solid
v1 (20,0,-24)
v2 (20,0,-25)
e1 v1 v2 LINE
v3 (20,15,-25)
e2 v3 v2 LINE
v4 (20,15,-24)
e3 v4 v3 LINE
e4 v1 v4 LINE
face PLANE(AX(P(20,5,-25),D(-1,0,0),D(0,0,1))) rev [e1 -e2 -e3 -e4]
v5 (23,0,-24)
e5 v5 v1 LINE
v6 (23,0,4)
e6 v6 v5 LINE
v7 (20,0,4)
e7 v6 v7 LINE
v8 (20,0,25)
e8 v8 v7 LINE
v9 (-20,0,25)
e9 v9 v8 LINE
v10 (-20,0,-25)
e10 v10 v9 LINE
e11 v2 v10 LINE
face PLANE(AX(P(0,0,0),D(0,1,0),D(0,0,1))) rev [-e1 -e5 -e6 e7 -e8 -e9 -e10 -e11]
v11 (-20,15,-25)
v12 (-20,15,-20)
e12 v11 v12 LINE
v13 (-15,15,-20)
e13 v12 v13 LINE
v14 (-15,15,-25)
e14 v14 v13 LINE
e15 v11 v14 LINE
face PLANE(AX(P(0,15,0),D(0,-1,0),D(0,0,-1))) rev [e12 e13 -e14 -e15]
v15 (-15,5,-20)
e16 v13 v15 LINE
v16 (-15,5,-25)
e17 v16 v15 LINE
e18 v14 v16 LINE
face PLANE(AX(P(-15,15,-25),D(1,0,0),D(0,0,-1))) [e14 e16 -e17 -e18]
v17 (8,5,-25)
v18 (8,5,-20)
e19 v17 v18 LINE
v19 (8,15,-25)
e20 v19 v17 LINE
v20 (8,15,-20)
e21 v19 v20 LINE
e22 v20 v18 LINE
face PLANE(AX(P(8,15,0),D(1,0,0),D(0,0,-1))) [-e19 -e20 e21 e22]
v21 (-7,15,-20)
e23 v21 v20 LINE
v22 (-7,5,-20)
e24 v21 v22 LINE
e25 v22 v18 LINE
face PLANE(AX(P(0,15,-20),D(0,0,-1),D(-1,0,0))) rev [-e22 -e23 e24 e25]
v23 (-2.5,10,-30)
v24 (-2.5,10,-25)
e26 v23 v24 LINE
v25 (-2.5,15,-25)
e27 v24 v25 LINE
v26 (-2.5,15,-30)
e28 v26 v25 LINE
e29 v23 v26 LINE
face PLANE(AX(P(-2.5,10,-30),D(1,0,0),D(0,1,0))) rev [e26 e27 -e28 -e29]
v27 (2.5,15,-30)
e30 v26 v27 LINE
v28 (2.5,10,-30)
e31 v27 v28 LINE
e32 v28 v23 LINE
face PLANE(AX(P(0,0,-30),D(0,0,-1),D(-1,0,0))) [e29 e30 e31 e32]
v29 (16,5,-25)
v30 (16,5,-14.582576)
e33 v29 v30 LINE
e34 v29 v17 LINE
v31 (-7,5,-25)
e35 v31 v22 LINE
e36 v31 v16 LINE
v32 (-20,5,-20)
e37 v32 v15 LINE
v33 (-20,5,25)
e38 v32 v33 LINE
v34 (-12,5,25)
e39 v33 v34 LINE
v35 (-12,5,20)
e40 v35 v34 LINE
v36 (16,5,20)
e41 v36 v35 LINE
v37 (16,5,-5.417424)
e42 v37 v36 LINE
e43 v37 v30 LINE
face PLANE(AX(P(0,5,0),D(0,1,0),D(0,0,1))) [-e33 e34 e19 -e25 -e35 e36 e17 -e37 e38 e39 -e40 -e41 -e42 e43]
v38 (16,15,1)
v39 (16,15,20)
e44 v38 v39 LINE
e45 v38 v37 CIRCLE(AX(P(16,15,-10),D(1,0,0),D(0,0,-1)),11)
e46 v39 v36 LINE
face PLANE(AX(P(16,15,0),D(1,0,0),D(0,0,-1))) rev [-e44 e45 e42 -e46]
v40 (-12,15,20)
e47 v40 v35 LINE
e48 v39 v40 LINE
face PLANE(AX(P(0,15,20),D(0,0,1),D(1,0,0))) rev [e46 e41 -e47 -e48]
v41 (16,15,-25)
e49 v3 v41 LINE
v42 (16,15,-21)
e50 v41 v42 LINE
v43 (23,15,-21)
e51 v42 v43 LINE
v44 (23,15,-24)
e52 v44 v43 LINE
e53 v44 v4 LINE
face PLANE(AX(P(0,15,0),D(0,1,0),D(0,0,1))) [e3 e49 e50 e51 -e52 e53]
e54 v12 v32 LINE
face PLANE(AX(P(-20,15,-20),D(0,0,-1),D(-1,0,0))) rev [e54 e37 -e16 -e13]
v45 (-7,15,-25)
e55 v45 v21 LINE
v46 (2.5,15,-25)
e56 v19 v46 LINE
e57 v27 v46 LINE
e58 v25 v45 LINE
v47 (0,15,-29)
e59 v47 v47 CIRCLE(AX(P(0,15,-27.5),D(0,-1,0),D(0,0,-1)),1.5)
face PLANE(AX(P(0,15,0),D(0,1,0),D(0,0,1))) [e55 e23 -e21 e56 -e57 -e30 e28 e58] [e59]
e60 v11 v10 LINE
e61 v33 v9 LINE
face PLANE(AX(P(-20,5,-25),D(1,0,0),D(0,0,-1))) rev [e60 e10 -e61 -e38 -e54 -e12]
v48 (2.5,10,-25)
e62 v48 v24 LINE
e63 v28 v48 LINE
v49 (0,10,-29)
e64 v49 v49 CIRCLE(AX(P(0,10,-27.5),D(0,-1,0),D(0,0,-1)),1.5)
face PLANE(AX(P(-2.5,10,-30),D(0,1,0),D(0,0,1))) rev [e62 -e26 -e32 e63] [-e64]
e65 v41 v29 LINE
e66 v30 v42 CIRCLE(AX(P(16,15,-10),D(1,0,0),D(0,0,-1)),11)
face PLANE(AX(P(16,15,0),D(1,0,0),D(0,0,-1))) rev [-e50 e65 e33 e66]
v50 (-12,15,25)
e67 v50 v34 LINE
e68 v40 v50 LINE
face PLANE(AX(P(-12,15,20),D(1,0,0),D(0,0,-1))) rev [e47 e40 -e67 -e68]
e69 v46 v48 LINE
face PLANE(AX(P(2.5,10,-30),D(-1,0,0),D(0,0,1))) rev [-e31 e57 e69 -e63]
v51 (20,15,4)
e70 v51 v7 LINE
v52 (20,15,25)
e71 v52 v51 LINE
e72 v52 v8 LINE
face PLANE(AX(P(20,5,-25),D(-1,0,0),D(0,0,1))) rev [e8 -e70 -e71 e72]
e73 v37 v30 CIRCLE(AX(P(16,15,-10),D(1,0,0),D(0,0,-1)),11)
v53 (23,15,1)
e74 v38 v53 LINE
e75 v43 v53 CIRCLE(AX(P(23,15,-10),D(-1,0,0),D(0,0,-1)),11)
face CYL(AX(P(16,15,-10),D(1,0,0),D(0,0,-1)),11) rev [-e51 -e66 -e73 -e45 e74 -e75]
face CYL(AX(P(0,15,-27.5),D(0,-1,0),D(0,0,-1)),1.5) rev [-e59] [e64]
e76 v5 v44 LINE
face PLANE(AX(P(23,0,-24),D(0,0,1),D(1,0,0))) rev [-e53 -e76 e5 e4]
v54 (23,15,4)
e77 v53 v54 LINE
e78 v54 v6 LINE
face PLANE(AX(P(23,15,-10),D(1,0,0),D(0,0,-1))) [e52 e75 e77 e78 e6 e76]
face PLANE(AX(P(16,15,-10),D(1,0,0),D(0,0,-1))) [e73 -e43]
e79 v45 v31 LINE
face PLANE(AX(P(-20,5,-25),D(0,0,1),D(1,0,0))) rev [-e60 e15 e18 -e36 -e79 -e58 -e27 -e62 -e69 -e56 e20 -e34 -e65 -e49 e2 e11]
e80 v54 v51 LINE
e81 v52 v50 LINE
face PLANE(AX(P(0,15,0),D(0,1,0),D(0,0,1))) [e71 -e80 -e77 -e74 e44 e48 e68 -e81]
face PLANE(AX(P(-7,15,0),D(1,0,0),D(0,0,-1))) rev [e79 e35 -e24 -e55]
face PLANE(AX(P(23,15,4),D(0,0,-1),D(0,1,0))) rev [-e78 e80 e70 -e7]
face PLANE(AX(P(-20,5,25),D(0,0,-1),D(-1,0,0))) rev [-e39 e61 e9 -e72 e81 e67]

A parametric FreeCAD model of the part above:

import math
import FreeCAD as App
import Part
import Sketcher

V = App.Vector

doc = App.newDocument("Part")
body = doc.addObject("PartDesign::Body", "Body")

sketch1 = doc.addObject("Sketcher::SketchObject", "Sketch")
body.addObject(sketch1)
sketch1.AttachmentSupport = (doc.XZ_Plane, [""])
sketch1.MapMode = "FlatFace"
sketch1.addGeometry([
    Part.LineSegment(V(-20, -25, 0), V(-20, 25, 0)),
    Part.LineSegment(V(-20, 25, 0), V(20, 25, 0)),
    Part.LineSegment(V(20, 25, 0), V(20, -25, 0)),
    Part.LineSegment(V(20, -25, 0), V(-20, -25, 0)),
], False)
sketch1.addConstraint([
    Sketcher.Constraint("Coincident", 0, 2, 1, 1),
    Sketcher.Constraint("Coincident", 1, 2, 2, 1),
    Sketcher.Constraint("Coincident", 2, 2, 3, 1),
    Sketcher.Constraint("Coincident", 3, 2, 0, 1),
    Sketcher.Constraint("Vertical", 0),
    Sketcher.Constraint("Horizontal", 1),
    Sketcher.Constraint("Vertical", 2),
    Sketcher.Constraint("Horizontal", 3),
    Sketcher.Constraint("Symmetric", 0, 2, 2, 2, -1, 1),
    Sketcher.Constraint("DistanceX", 1, 1, 1, 2, 40.0),
    Sketcher.Constraint("DistanceY", 0, 1, 0, 2, 50.0),
])
pad1 = doc.addObject("PartDesign::Pad", "Pad")
body.addObject(pad1)
pad1.Profile = sketch1
pad1.Length = 5
pad1.Reversed = True

sketch2 = doc.addObject("Sketcher::SketchObject", "Sketch001")
body.addObject(sketch2)
sketch2.AttachmentSupport = (doc.XZ_Plane, [""])
sketch2.MapMode = "FlatFace"
sketch2.AttachmentOffset = App.Placement(V(0, 0, -5), App.Rotation())
sketch2.addGeometry([
    Part.LineSegment(V(20, 25, 0), V(20, -25, 0)),
    Part.LineSegment(V(20, -25, 0), V(16, -25, 0)),
    Part.LineSegment(V(16, -25, 0), V(16, 20, 0)),
    Part.LineSegment(V(16, 20, 0), V(-12, 20, 0)),
    Part.LineSegment(V(-12, 20, 0), V(-12, 25, 0)),
    Part.LineSegment(V(-12, 25, 0), V(20, 25, 0)),
    Part.LineSegment(V(-7, -25, 0), V(-7, -20, 0)),
    Part.LineSegment(V(-7, -20, 0), V(8, -20, 0)),
    Part.LineSegment(V(8, -20, 0), V(8, -25, 0)),
    Part.LineSegment(V(8, -25, 0), V(-7, -25, 0)),
    Part.LineSegment(V(-20, -25, 0), V(-20, -20, 0)),
    Part.LineSegment(V(-20, -20, 0), V(-15, -20, 0)),
    Part.LineSegment(V(-15, -20, 0), V(-15, -25, 0)),
    Part.LineSegment(V(-15, -25, 0), V(-20, -25, 0)),
], False)
sketch2.addConstraint([
    Sketcher.Constraint("Coincident", 0, 2, 1, 1),
    Sketcher.Constraint("Coincident", 1, 2, 2, 1),
    Sketcher.Constraint("Coincident", 2, 2, 3, 1),
    Sketcher.Constraint("Coincident", 3, 2, 4, 1),
    Sketcher.Constraint("Coincident", 4, 2, 5, 1),
    Sketcher.Constraint("Coincident", 5, 2, 0, 1),
    Sketcher.Constraint("Coincident", 6, 2, 7, 1),
    Sketcher.Constraint("Coincident", 7, 2, 8, 1),
    Sketcher.Constraint("Coincident", 8, 2, 9, 1),
    Sketcher.Constraint("Coincident", 9, 2, 6, 1),
    Sketcher.Constraint("Coincident", 10, 2, 11, 1),
    Sketcher.Constraint("Coincident", 11, 2, 12, 1),
    Sketcher.Constraint("Coincident", 12, 2, 13, 1),
    Sketcher.Constraint("Coincident", 13, 2, 10, 1),
    Sketcher.Constraint("Vertical", 0),
    Sketcher.Constraint("Horizontal", 1),
    Sketcher.Constraint("Vertical", 2),
    Sketcher.Constraint("Horizontal", 3),
    Sketcher.Constraint("Vertical", 4),
    Sketcher.Constraint("Horizontal", 5),
    Sketcher.Constraint("Vertical", 6),
    Sketcher.Constraint("Horizontal", 7),
    Sketcher.Constraint("Vertical", 8),
    Sketcher.Constraint("Horizontal", 9),
    Sketcher.Constraint("Vertical", 10),
    Sketcher.Constraint("Horizontal", 11),
    Sketcher.Constraint("Vertical", 12),
    Sketcher.Constraint("Horizontal", 13),
    Sketcher.Constraint("Symmetric", 5, 2, 13, 2, -1, 1),
    Sketcher.Constraint("Horizontal", 1, 2, 8, 2),
    Sketcher.Constraint("Horizontal", 7, 2, 10, 2),
    Sketcher.Constraint("Horizontal", 9, 2, 12, 2),
    Sketcher.Constraint("Equal", 13, 4),
    Sketcher.Constraint("Equal", 4, 6),
    Sketcher.Constraint("DistanceX", 1, 2, 1, 1, 4.0),
    Sketcher.Constraint("DistanceX", 3, 2, 3, 1, 28.0),
    Sketcher.Constraint("DistanceX", 7, 1, 7, 2, 15.0),
    Sketcher.Constraint("DistanceX", 11, 1, 11, 2, 5.0),
    Sketcher.Constraint("DistanceY", 0, 2, 0, 1, 50.0),
    Sketcher.Constraint("DistanceX", -1, 1, 0, 2, 20.0),
    Sketcher.Constraint("DistanceX", 6, 2, -1, 1, 7.0),
])
pad2 = doc.addObject("PartDesign::Pad", "Pad001")
body.addObject(pad2)
pad2.Profile = sketch2
pad2.Length = 10
pad2.Reversed = True

sketch3 = doc.addObject("Sketcher::SketchObject", "Sketch002")
body.addObject(sketch3)
sketch3.AttachmentSupport = (doc.YZ_Plane, [""])
sketch3.MapMode = "FlatFace"
sketch3.AttachmentOffset = App.Placement(V(0, 0, 20), App.Rotation())
sketch3.addGeometry([
    Part.LineSegment(V(15, -21, 0), V(15, 1, 0)),
    Part.ArcOfCircle(Part.Circle(V(15, -10, 0), V(0, 0, 1), 11), math.radians(90), math.radians(270)),
], False)
sketch3.addConstraint([
    Sketcher.Constraint("Coincident", 0, 1, 1, 2),
    Sketcher.Constraint("Coincident", 1, 1, 0, 2),
    Sketcher.Constraint("Vertical", 0),
    Sketcher.Constraint("Vertical", 1, 3, 0, 1),
    Sketcher.Constraint("Radius", 1, 11.0),
    Sketcher.Constraint("DistanceX", -1, 1, 1, 3, 15.0),
    Sketcher.Constraint("DistanceY", 1, 3, -1, 1, 10.0),
])
pocket1 = doc.addObject("PartDesign::Pocket", "Pocket")
body.addObject(pocket1)
pocket1.Profile = sketch3
pocket1.Length = 4

sketch4 = doc.addObject("Sketcher::SketchObject", "Sketch003")
body.addObject(sketch4)
sketch4.AttachmentSupport = (doc.YZ_Plane, [""])
sketch4.MapMode = "FlatFace"
sketch4.AttachmentOffset = App.Placement(V(0, 0, 23), App.Rotation())
sketch4.addGeometry([
    Part.LineSegment(V(15, 1, 0), V(15, 4, 0)),
    Part.LineSegment(V(15, 4, 0), V(0, 4, 0)),
    Part.LineSegment(V(0, 4, 0), V(0, -24, 0)),
    Part.LineSegment(V(0, -24, 0), V(15, -24, 0)),
    Part.LineSegment(V(15, -24, 0), V(15, -21, 0)),
    Part.ArcOfCircle(Part.Circle(V(15, -10, 0), V(0, 0, 1), 11), math.radians(90), math.radians(270)),
], False)
sketch4.addConstraint([
    Sketcher.Constraint("Coincident", 0, 2, 1, 1),
    Sketcher.Constraint("Coincident", 1, 2, 2, 1),
    Sketcher.Constraint("Coincident", 2, 2, 3, 1),
    Sketcher.Constraint("Coincident", 3, 2, 4, 1),
    Sketcher.Constraint("Coincident", 4, 2, 5, 2),
    Sketcher.Constraint("Coincident", 5, 1, 0, 1),
    Sketcher.Constraint("Vertical", 0),
    Sketcher.Constraint("Horizontal", 1),
    Sketcher.Constraint("Vertical", 2),
    Sketcher.Constraint("Horizontal", 3),
    Sketcher.Constraint("Vertical", 4),
    Sketcher.Constraint("PointOnObject", 1, 2, -2),
    Sketcher.Constraint("Vertical", 5, 3, 0, 2),
    Sketcher.Constraint("Vertical", 0, 2, 3, 2),
    Sketcher.Constraint("Equal", 0, 4),
    Sketcher.Constraint("Radius", 5, 11.0),
    Sketcher.Constraint("DistanceX", 1, 2, 1, 1, 15.0),
    Sketcher.Constraint("DistanceY", 0, 1, 0, 2, 3.0),
    Sketcher.Constraint("DistanceY", 5, 3, -1, 1, 10.0),
])
pad3 = doc.addObject("PartDesign::Pad", "Pad002")
body.addObject(pad3)
pad3.Profile = sketch4
pad3.Length = 3
pad3.Reversed = True

sketch5 = doc.addObject("Sketcher::SketchObject", "Sketch004")
body.addObject(sketch5)
sketch5.AttachmentSupport = (doc.XY_Plane, [""])
sketch5.MapMode = "FlatFace"
sketch5.AttachmentOffset = App.Placement(V(0, 0, -25), App.Rotation())
sketch5.addGeometry([
    Part.LineSegment(V(2, 15, 0), V(2, 10, 0)),
    Part.LineSegment(V(2, 10, 0), V(-2, 10, 0)),
    Part.LineSegment(V(-2, 10, 0), V(-2, 15, 0)),
    Part.LineSegment(V(-2, 15, 0), V(2, 15, 0)),
], False)
sketch5.addConstraint([
    Sketcher.Constraint("Coincident", 0, 2, 1, 1),
    Sketcher.Constraint("Coincident", 1, 2, 2, 1),
    Sketcher.Constraint("Coincident", 2, 2, 3, 1),
    Sketcher.Constraint("Coincident", 3, 2, 0, 1),
    Sketcher.Constraint("Vertical", 0),
    Sketcher.Constraint("Horizontal", 1),
    Sketcher.Constraint("Vertical", 2),
    Sketcher.Constraint("Horizontal", 3),
    Sketcher.Constraint("Equal", 3, 0),
    Sketcher.Constraint("DistanceX", 1, 2, 1, 1, 5.0),
    Sketcher.Constraint("DistanceY", -1, 1, 0, 2, 10.0),
    Sketcher.Constraint("DistanceX", -1, 1, 0, 2, 2.5),
])
pad4 = doc.addObject("PartDesign::Pad", "Pad003")
body.addObject(pad4)
pad4.Profile = sketch5
pad4.Length = 5
pad4.Reversed = True

sketch6 = doc.addObject("Sketcher::SketchObject", "Sketch005")
body.addObject(sketch6)
sketch6.AttachmentSupport = (doc.XZ_Plane, [""])
sketch6.MapMode = "FlatFace"
sketch6.AttachmentOffset = App.Placement(V(0, 0, -10), App.Rotation())
sketch6.addGeometry(Part.Circle(V(0, -27.5, 0), V(0, 0, 1), 1.5), False)
sketch6.addConstraint([
    Sketcher.Constraint("PointOnObject", 0, 3, -2),
    Sketcher.Constraint("Diameter", 0, 3.0),
    Sketcher.Constraint("DistanceY", 0, 3, -1, 1, 27.5),
])
pocket2 = doc.addObject("PartDesign::Pocket", "Pocket001")
body.addObject(pocket2)
pocket2.Profile = sketch6
pocket2.Length = 5

doc.recompute()
